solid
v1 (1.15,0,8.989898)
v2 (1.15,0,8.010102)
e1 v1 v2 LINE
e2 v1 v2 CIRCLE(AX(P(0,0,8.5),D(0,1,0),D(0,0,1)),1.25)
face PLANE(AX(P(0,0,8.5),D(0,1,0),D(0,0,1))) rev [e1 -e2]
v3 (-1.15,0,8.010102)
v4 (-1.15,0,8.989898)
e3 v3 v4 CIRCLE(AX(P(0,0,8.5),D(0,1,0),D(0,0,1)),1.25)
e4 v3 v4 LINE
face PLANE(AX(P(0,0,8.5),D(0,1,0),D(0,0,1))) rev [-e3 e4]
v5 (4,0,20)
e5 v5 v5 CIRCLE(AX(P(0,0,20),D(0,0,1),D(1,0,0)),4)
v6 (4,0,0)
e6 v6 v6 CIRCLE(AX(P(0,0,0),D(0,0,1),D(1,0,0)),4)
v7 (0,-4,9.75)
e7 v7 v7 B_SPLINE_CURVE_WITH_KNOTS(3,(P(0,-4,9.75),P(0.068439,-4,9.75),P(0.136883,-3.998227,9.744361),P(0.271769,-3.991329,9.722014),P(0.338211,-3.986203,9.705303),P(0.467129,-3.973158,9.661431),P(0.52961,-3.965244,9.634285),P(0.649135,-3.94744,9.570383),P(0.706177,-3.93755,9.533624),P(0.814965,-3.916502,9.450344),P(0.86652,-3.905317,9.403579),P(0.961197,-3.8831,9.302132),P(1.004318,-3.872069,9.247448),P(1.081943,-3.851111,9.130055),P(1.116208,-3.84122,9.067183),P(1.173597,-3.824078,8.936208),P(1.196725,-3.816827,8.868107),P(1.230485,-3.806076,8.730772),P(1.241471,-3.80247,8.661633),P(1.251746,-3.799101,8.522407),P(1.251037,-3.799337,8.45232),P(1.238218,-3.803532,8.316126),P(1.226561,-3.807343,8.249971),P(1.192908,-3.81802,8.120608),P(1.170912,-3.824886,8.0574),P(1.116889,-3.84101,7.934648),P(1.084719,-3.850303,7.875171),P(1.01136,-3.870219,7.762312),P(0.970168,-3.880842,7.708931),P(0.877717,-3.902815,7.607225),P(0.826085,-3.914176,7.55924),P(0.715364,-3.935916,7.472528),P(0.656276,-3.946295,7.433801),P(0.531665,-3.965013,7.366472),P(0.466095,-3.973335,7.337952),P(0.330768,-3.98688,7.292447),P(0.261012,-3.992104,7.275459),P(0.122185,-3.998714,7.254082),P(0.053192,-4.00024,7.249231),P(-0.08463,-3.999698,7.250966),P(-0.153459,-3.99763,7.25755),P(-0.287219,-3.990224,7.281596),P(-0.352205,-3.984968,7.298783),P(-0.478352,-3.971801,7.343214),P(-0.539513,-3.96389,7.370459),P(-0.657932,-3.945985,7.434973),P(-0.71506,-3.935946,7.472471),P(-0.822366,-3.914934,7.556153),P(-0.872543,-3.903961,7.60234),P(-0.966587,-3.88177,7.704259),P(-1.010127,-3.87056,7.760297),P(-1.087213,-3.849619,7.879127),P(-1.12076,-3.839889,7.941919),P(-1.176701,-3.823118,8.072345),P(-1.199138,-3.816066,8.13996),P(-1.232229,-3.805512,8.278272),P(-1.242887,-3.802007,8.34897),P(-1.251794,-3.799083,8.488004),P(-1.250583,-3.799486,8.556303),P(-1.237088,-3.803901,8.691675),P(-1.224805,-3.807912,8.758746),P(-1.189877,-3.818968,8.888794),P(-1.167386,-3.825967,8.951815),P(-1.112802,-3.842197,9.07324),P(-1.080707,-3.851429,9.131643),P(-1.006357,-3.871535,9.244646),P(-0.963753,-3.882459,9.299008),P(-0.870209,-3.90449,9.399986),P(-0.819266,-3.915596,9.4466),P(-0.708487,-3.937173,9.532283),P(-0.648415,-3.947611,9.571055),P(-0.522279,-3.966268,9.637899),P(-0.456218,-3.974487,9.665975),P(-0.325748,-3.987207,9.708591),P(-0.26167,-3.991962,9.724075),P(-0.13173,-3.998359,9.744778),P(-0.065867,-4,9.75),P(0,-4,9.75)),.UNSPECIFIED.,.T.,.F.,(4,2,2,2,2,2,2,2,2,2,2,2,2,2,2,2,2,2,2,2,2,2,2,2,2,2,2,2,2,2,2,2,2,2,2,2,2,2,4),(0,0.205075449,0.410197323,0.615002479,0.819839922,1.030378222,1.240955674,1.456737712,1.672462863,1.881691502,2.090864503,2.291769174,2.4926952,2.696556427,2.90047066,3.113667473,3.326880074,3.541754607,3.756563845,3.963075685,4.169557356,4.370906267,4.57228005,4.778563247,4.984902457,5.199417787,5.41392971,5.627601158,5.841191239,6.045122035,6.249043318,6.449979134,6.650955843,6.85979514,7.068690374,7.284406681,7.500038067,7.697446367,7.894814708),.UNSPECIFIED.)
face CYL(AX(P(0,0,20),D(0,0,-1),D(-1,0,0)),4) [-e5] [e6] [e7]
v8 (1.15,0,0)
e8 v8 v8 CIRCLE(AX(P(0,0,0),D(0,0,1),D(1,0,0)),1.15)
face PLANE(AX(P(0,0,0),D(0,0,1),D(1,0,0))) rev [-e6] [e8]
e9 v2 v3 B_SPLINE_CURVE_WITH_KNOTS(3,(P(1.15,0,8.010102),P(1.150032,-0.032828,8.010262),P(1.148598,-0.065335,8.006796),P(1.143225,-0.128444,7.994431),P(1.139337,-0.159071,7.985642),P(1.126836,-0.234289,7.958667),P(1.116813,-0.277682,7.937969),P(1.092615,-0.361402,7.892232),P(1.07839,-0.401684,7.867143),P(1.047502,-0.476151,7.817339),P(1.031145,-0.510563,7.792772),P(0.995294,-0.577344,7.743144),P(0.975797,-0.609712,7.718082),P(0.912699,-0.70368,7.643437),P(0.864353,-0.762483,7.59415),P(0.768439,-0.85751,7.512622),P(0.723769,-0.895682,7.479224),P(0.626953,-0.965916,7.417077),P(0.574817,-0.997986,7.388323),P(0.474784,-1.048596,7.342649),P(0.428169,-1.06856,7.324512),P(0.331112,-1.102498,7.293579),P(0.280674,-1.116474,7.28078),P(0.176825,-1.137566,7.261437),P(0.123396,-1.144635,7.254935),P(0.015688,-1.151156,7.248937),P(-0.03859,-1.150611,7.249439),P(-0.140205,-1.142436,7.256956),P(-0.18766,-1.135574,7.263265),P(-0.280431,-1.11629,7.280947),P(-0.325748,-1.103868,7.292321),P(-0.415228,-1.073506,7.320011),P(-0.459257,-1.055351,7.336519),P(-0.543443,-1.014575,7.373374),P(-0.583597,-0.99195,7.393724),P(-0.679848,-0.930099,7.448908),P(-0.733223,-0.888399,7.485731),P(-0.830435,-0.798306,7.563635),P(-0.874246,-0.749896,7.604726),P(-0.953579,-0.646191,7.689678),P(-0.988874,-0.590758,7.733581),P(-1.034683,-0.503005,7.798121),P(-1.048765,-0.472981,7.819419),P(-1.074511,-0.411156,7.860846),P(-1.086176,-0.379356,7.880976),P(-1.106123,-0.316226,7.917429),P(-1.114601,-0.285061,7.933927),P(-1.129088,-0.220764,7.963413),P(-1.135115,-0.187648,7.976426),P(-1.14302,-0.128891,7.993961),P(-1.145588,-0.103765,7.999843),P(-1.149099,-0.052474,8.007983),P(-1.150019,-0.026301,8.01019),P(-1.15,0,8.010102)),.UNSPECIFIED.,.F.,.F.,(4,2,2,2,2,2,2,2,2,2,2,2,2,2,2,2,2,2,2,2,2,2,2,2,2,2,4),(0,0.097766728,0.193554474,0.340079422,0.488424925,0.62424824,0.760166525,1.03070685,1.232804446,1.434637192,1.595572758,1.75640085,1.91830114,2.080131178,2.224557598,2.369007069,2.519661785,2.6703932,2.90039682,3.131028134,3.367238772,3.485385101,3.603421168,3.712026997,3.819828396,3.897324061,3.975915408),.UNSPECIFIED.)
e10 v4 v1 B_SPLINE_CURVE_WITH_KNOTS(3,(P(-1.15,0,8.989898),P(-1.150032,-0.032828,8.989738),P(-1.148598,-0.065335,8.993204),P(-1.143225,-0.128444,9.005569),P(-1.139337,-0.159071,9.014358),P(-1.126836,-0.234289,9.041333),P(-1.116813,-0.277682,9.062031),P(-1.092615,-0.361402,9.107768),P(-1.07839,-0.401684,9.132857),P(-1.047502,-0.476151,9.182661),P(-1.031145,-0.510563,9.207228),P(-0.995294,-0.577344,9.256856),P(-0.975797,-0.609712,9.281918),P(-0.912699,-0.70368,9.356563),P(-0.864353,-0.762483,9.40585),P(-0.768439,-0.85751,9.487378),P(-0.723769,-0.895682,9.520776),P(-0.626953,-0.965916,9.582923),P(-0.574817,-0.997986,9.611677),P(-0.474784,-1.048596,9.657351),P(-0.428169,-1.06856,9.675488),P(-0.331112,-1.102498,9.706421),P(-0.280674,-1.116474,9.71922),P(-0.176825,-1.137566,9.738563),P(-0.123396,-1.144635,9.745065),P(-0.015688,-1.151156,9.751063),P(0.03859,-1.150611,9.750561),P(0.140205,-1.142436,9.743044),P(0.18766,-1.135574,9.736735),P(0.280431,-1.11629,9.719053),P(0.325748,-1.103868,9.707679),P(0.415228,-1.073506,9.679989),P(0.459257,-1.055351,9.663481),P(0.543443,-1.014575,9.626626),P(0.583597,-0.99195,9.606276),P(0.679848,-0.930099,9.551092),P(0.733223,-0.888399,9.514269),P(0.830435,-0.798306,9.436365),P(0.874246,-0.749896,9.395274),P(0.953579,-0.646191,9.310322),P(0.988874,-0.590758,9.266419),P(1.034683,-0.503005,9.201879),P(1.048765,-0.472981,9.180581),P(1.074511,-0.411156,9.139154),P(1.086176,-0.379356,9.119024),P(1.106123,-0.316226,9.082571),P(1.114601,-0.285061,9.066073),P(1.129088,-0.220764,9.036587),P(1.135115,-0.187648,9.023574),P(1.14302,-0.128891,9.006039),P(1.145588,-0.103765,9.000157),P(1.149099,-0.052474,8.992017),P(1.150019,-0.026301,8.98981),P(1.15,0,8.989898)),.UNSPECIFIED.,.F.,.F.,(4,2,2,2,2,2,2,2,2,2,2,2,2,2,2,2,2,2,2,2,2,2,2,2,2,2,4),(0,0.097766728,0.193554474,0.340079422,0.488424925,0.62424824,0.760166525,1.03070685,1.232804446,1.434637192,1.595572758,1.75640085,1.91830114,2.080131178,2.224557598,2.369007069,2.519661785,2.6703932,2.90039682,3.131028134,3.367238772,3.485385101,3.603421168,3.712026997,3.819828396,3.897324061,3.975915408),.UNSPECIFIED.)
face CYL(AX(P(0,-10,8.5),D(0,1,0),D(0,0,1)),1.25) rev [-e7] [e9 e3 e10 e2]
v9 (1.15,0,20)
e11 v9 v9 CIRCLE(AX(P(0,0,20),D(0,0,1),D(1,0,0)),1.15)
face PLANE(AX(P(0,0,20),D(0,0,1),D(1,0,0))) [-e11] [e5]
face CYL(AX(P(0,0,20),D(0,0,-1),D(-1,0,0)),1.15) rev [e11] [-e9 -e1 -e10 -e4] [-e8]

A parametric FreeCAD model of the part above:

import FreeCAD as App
import Part
import Sketcher

V = App.Vector
Q = App.Units.Quantity

doc = App.newDocument("Part")
body = doc.addObject("PartDesign::Body", "Body")

sketch1 = body.newObject("Sketcher::SketchObject", "Sketch")
sketch1.AttachmentSupport = (doc.getObject("XY_Plane"), [""])
sketch1.MapMode = "FlatFace"
sketch1.addGeometry(Part.Circle(V(0, 0, 0), V(0, 0, 1), 4), False)
sketch1.addGeometry(Part.Circle(V(0, 0, 0), V(0, 0, 1), 1.1), False)
sketch1.addConstraint(Sketcher.Constraint("Coincident", 0, 3, -1, 1))
sketch1.addConstraint(Sketcher.Constraint("Coincident", 1, 3, -1, 1))
sketch1.addConstraint(Sketcher.Constraint("Diameter", 0, Q("8 mm")))
sketch1.addConstraint(Sketcher.Constraint("Diameter", 1, Q("2.3 mm")))
pad1 = body.newObject("PartDesign::Pad", "Pad")
pad1.Profile = sketch1
pad1.Length = 20

sketch2 = body.newObject("Sketcher::SketchObject", "Sketch001")
sketch2.AttachmentSupport = (doc.getObject("XZ_Plane"), [""])
sketch2.MapMode = "FlatFace"
sketch2.addGeometry(Part.Circle(V(0, 8.5, 0), V(0, 0, 1), 1.2), False)
sketch2.addConstraint(Sketcher.Constraint("PointOnObject", 0, 3, -2))
sketch2.addConstraint(Sketcher.Constraint("Diameter", 0, Q("2.5 mm")))
sketch2.addConstraint(Sketcher.Constraint("DistanceY", -1, 1, 0, 3, Q("8.5 mm")))
pocket1 = body.newObject("PartDesign::Pocket", "Pocket")
pocket1.Profile = sketch2
pocket1.Length = 10
pocket1.Reversed = True

doc.recompute()
